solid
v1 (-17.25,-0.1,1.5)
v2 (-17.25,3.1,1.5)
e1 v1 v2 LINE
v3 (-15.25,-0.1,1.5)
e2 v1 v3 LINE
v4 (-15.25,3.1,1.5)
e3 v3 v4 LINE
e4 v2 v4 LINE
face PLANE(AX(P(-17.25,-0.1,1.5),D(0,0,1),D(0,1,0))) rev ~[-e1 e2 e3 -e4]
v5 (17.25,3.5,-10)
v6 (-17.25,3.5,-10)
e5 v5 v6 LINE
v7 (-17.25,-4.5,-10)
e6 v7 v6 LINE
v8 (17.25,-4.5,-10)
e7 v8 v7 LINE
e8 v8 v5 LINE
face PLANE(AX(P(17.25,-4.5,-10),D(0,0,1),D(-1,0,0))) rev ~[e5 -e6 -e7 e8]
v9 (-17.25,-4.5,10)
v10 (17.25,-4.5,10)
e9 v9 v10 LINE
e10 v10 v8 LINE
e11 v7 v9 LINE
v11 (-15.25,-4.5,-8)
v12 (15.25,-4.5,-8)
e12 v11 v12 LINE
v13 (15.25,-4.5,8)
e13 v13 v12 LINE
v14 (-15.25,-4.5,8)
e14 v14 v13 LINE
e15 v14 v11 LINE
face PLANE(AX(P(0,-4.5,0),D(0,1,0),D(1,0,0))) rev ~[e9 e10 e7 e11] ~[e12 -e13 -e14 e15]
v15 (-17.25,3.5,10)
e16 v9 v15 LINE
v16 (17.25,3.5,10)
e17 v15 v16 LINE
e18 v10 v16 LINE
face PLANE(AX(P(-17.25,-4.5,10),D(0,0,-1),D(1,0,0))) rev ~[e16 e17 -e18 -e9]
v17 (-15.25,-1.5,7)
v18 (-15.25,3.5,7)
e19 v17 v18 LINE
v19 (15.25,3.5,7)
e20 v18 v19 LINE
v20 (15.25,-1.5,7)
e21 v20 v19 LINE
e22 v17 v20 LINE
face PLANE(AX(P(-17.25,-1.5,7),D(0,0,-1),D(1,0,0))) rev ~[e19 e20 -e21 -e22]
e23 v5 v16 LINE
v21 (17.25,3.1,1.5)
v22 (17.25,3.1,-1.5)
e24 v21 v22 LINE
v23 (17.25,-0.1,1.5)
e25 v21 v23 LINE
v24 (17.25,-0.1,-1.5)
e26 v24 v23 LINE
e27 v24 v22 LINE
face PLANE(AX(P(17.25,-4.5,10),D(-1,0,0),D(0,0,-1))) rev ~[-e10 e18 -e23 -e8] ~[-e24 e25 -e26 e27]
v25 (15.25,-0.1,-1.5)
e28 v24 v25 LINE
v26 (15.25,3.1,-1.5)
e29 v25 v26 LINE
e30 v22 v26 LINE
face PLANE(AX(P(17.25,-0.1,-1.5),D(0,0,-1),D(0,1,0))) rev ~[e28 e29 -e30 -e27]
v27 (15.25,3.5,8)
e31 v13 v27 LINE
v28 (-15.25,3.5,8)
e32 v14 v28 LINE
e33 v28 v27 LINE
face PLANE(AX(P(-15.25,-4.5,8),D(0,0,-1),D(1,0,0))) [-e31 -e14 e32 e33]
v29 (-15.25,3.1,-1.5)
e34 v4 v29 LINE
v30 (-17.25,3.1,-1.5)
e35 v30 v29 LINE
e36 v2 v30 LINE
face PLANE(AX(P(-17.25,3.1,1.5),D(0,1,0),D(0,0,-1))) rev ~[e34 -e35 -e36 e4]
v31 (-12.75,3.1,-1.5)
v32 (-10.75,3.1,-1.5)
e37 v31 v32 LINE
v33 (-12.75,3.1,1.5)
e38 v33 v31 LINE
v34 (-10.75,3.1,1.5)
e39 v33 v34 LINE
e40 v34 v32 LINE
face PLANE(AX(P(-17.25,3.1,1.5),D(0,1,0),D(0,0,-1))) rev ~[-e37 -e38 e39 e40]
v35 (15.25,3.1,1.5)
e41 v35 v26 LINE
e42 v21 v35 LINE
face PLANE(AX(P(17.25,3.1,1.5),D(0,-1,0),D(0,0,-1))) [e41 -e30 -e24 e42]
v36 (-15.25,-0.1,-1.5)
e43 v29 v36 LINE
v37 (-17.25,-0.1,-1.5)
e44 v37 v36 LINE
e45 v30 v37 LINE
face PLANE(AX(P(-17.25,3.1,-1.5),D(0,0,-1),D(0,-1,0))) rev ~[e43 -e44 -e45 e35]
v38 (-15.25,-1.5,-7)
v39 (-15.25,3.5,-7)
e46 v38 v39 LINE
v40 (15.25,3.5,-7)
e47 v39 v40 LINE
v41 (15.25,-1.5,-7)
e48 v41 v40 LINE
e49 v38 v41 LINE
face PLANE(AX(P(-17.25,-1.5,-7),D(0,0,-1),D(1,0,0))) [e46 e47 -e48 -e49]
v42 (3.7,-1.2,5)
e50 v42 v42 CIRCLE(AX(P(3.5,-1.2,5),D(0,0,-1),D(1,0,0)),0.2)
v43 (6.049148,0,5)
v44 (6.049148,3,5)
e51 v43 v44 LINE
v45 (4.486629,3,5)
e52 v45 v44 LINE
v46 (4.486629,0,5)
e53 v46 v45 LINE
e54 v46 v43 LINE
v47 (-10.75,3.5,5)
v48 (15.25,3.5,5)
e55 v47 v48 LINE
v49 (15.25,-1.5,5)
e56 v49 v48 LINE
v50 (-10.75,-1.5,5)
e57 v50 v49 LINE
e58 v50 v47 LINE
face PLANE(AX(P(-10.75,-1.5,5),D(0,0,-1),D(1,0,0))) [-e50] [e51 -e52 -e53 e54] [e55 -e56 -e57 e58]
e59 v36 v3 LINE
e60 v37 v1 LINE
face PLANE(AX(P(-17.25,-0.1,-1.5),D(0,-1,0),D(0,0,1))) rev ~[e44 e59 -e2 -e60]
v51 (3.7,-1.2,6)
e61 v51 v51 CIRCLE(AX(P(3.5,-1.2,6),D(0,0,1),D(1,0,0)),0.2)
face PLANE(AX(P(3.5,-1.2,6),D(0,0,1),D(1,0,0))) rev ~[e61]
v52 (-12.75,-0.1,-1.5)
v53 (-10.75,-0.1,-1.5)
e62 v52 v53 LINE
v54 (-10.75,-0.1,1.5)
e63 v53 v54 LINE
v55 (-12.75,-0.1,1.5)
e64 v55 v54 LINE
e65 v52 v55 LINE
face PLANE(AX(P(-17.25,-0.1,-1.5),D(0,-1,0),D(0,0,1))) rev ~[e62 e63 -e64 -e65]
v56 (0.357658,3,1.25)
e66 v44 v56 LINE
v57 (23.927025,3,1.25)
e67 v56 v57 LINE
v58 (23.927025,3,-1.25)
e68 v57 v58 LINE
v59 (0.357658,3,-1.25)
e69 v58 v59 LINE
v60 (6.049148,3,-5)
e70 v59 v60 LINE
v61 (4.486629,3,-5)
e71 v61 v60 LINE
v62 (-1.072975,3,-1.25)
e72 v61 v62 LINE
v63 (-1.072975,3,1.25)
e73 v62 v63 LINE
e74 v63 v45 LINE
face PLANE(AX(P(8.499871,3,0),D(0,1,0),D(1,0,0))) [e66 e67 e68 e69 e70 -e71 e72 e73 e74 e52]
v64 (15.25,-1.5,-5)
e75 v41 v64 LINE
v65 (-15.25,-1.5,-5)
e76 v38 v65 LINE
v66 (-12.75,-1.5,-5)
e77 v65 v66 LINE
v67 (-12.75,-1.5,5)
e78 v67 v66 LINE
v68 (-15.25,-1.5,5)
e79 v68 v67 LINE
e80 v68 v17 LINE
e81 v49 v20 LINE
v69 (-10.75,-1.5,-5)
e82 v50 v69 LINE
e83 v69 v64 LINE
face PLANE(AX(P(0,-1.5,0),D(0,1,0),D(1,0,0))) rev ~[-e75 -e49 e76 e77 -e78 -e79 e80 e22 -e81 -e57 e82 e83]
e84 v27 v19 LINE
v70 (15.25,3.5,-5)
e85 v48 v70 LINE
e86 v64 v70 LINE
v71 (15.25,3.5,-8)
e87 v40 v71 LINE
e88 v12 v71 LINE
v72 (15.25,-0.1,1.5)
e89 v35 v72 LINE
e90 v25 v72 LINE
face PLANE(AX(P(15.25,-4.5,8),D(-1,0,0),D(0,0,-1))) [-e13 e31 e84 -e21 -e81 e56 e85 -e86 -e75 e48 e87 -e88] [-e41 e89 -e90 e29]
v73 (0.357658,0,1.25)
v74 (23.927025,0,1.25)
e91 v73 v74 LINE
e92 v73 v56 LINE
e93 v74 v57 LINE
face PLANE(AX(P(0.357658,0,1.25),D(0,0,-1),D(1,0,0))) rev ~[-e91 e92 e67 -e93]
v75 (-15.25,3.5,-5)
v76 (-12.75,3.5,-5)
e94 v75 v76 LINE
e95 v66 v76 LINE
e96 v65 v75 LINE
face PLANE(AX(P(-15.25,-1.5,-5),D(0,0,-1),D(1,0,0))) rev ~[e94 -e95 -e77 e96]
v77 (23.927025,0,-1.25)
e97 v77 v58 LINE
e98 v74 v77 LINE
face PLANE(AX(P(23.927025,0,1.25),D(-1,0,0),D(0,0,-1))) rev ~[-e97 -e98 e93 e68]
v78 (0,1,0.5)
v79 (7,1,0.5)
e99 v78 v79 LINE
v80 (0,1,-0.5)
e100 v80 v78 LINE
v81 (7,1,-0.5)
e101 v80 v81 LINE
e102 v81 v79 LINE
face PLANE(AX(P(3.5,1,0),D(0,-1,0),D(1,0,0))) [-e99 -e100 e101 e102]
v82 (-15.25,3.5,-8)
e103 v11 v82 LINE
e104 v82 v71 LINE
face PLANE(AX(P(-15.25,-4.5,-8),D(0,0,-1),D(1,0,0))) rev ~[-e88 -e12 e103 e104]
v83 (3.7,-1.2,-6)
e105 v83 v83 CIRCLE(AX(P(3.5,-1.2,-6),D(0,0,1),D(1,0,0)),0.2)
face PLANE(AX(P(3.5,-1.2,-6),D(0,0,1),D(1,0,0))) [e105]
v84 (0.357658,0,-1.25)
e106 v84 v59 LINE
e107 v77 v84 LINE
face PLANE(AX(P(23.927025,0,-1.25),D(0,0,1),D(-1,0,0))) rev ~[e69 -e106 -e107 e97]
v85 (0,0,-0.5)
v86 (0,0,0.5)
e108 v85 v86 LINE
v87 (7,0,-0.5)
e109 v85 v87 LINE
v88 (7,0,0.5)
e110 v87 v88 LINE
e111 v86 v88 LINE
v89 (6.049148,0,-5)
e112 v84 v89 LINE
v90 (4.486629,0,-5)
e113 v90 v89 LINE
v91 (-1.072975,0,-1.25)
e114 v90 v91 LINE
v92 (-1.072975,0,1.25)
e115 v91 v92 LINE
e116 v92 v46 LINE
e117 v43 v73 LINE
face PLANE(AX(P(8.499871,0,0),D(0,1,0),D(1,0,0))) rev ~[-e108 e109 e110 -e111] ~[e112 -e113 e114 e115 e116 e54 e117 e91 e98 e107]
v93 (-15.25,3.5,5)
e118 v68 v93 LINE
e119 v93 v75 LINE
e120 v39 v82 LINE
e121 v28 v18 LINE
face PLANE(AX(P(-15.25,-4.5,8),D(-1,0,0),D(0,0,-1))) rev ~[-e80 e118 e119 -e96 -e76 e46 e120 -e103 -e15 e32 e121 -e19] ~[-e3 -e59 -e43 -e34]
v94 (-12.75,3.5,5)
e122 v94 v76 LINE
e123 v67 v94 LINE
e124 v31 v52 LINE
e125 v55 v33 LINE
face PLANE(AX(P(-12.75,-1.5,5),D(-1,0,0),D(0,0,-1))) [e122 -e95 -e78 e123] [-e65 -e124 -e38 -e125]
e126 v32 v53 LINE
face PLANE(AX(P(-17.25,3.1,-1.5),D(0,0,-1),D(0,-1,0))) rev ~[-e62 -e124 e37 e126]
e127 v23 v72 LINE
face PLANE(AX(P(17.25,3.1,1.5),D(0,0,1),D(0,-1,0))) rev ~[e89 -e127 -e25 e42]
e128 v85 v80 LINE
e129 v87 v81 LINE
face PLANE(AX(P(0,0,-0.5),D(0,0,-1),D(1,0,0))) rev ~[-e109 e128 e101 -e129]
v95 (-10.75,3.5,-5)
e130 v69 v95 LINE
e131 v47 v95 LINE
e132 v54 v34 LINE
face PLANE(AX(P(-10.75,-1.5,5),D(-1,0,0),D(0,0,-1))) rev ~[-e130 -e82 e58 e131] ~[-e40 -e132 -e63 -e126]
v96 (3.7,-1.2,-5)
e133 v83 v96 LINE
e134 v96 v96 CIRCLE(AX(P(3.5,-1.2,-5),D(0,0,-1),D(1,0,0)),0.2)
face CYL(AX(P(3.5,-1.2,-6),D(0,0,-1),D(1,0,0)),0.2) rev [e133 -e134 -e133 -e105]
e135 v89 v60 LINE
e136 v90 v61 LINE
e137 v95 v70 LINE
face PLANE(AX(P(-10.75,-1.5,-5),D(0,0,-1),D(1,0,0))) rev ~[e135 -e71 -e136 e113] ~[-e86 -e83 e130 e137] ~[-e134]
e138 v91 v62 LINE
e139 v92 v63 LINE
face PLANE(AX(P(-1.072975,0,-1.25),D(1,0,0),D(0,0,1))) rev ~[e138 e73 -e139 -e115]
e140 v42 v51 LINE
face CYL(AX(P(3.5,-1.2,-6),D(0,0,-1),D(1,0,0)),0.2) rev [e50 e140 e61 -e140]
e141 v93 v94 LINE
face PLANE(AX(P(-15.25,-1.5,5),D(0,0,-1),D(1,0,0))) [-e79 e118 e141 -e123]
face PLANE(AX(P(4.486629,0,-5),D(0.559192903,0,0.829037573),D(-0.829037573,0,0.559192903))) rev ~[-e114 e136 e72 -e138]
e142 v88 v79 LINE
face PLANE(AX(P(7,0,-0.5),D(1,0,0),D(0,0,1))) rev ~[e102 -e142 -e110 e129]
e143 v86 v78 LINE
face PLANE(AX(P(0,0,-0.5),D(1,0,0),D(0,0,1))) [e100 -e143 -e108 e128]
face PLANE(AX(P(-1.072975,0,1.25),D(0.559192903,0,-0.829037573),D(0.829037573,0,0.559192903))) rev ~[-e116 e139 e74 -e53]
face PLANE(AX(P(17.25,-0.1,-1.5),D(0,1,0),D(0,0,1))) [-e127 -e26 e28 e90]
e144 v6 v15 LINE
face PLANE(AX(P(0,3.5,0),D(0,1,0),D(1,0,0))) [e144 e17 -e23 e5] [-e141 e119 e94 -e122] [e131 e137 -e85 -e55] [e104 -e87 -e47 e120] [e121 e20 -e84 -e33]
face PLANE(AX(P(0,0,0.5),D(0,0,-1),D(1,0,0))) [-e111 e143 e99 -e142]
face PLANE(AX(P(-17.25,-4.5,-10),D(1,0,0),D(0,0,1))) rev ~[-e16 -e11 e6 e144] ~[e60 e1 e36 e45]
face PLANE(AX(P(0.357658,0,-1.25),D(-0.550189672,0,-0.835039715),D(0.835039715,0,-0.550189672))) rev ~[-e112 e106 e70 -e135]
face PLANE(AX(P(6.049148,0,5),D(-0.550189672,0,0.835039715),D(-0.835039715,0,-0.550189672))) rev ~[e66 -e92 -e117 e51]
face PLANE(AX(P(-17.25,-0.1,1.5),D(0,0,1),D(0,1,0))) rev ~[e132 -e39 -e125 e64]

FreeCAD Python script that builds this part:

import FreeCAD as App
import Part
import Sketcher

V = App.Vector
Q = App.Units.Quantity


def add_polygon(sketch, points):
    """Adds a closed chain of lines whose ends are joined by coincident constraints."""
    first, n = sketch.GeometryCount, len(points)
    for a, b in zip(points, points[1:] + points[:1]):
        sketch.addGeometry(Part.LineSegment(App.Vector(*a, 0), App.Vector(*b, 0)), False)
    for i in range(n):
        sketch.addConstraint(Sketcher.Constraint("Coincident", first + i, 2, first + (i + 1) % n, 1))

doc = App.newDocument("Part")
body = doc.addObject("PartDesign::Body", "Body")

sketch1 = doc.addObject("Sketcher::SketchObject", "Sketch")
body.addObject(sketch1)
sketch1.AttachmentSupport = (doc.XZ_Plane, [""])
sketch1.MapMode = "FlatFace"
add_polygon(sketch1, [(-17.2, -7), (-17.2, 7), (17.2, 7), (17.2, -7)])
add_polygon(sketch1, [(-12.8, 5), (-15.2, 5), (-15.2, -5), (-12.8, -5)])
add_polygon(sketch1, [(15.2, 5), (-10.8, 5), (-10.8, -5), (15.2, -5)])
sketch1.addConstraint(Sketcher.Constraint("Vertical", 0))
sketch1.addConstraint(Sketcher.Constraint("Horizontal", 1))
sketch1.addConstraint(Sketcher.Constraint("Vertical", 2))
sketch1.addConstraint(Sketcher.Constraint("Horizontal", 3))
sketch1.addConstraint(Sketcher.Constraint("Horizontal", 4))
sketch1.addConstraint(Sketcher.Constraint("Vertical", 5))
sketch1.addConstraint(Sketcher.Constraint("Horizontal", 6))
sketch1.addConstraint(Sketcher.Constraint("Vertical", 7))
sketch1.addConstraint(Sketcher.Constraint("Horizontal", 8))
sketch1.addConstraint(Sketcher.Constraint("Vertical", 9))
sketch1.addConstraint(Sketcher.Constraint("Horizontal", 10))
sketch1.addConstraint(Sketcher.Constraint("Vertical", 11))
sketch1.addConstraint(Sketcher.Constraint("Symmetric", 0, 2, 2, 2, -1, 1))
sketch1.addConstraint(Sketcher.Constraint("Symmetric", 4, 2, 10, 2, -1, 1))
sketch1.addConstraint(Sketcher.Constraint("Horizontal", 7, 2, 8, 2))
sketch1.addConstraint(Sketcher.Constraint("Horizontal", 6, 2, 9, 2))
sketch1.addConstraint(Sketcher.Constraint("DistanceX", 8, 2, 8, 1, Q("26 mm")))
sketch1.addConstraint(Sketcher.Constraint("DistanceY", 0, 1, 0, 2, Q("14 mm")))
sketch1.addConstraint(Sketcher.Constraint("DistanceY", 5, 2, 5, 1, Q("10 mm")))
sketch1.addConstraint(Sketcher.Constraint("DistanceX", 1, 1, 1, 2, Q("34.5 mm")))
sketch1.addConstraint(Sketcher.Constraint("DistanceX", 4, 2, 4, 1, Q("2.5 mm")))
sketch1.addConstraint(Sketcher.Constraint("DistanceX", 0, 2, 4, 2, Q("2 mm")))
pad1 = doc.addObject("PartDesign::Pad", "Pad")
body.addObject(pad1)
pad1.Profile = sketch1
pad1.Type = "TwoLengths"
pad1.Length = 3.5
pad1.Length2 = 1.5
pad1.Reversed = True

sketch2 = doc.addObject("Sketcher::SketchObject", "Sketch001")
body.addObject(sketch2)
sketch2.AttachmentSupport = (doc.XZ_Plane, [""])
sketch2.MapMode = "FlatFace"
add_polygon(sketch2, [(17, 10), (17, -10), (-17, -10), (-17, 10)])
add_polygon(sketch2, [(15, 8), (-15, 8), (-15, -8), (15, -8)])
sketch2.addConstraint(Sketcher.Constraint("Vertical", 0))
sketch2.addConstraint(Sketcher.Constraint("Horizontal", 1))
sketch2.addConstraint(Sketcher.Constraint("Vertical", 2))
sketch2.addConstraint(Sketcher.Constraint("Horizontal", 3))
sketch2.addConstraint(Sketcher.Constraint("Horizontal", 4))
sketch2.addConstraint(Sketcher.Constraint("Vertical", 5))
sketch2.addConstraint(Sketcher.Constraint("Horizontal", 6))
sketch2.addConstraint(Sketcher.Constraint("Vertical", 7))
sketch2.addConstraint(Sketcher.Constraint("Symmetric", 0, 2, 2, 2, -1, 1))
sketch2.addConstraint(Sketcher.Constraint("Symmetric", 4, 2, 6, 2, -1, 1))
sketch2.addConstraint(Sketcher.Constraint("DistanceY", 0, 2, 0, 1, Q("20 mm")))
sketch2.addConstraint(Sketcher.Constraint("DistanceY", 5, 2, 5, 1, Q("16 mm")))
sketch2.addConstraint(Sketcher.Constraint("DistanceX", 1, 2, 1, 1, Q("34.5 mm")))
sketch2.addConstraint(Sketcher.Constraint("DistanceX", 4, 2, 4, 1, Q("30.5 mm")))
pad2 = doc.addObject("PartDesign::Pad", "Pad001")
body.addObject(pad2)
pad2.Profile = sketch2
pad2.Type = "TwoLengths"
pad2.Length = 3.5
pad2.Length2 = 4.5
pad2.Reversed = True

sketch3 = doc.addObject("Sketcher::SketchObject", "Sketch002")
body.addObject(sketch3)
sketch3.AttachmentSupport = (doc.YZ_Plane, [""])
sketch3.MapMode = "FlatFace"
sketch3.AttachmentOffset = App.Placement(V(0, 0, 17.25), App.Rotation())
add_polygon(sketch3, [(3.1, 1.5), (-0.1, 1.5), (-0.1, -1.5), (3.1, -1.5)])
sketch3.addConstraint(Sketcher.Constraint("Horizontal", 0))
sketch3.addConstraint(Sketcher.Constraint("Vertical", 1))
sketch3.addConstraint(Sketcher.Constraint("Horizontal", 2))
sketch3.addConstraint(Sketcher.Constraint("Vertical", 3))
sketch3.addConstraint(Sketcher.Constraint("DistanceY", 1, 2, 1, 1, Q("3 mm")))
sketch3.addConstraint(Sketcher.Constraint("DistanceX", 0, 2, 0, 1, Q("3.2 mm")))
sketch3.addConstraint(Sketcher.Constraint("DistanceX", 0, 2, -1, 1, Q("0.1 mm")))
sketch3.addConstraint(Sketcher.Constraint("DistanceY", -1, 1, 0, 2, Q("1.5 mm")))
pocket1 = doc.addObject("PartDesign::Pocket", "Pocket")
body.addObject(pocket1)
pocket1.Profile = sketch3
pocket1.Length = 2

sketch4 = doc.addObject("Sketcher::SketchObject", "Sketch003")
body.addObject(sketch4)
sketch4.AttachmentSupport = (doc.YZ_Plane, [""])
sketch4.MapMode = "FlatFace"
sketch4.AttachmentOffset = App.Placement(V(0, 0, -17.25), App.Rotation())
add_polygon(sketch4, [(-0.1, -1.5), (-0.1, 1.5), (3.1, 1.5), (3.1, -1.5)])
sketch4.addConstraint(Sketcher.Constraint("Vertical", 0))
sketch4.addConstraint(Sketcher.Constraint("Horizontal", 1))
sketch4.addConstraint(Sketcher.Constraint("Vertical", 2))
sketch4.addConstraint(Sketcher.Constraint("Horizontal", 3))
sketch4.addConstraint(Sketcher.Constraint("DistanceY", 0, 1, 0, 2, Q("3 mm")))
sketch4.addConstraint(Sketcher.Constraint("DistanceX", 1, 1, 1, 2, Q("3.2 mm")))
sketch4.addConstraint(Sketcher.Constraint("DistanceX", 0, 2, -1, 1, Q("0.1 mm")))
sketch4.addConstraint(Sketcher.Constraint("DistanceY", -1, 1, 0, 2, Q("1.5 mm")))
pocket2 = doc.addObject("PartDesign::Pocket", "Pocket001")
body.addObject(pocket2)
pocket2.Profile = sketch4
pocket2.Length = 8
pocket2.Reversed = True

sketch5 = doc.addObject("Sketcher::SketchObject", "Sketch004")
body.addObject(sketch5)
sketch5.AttachmentSupport = (doc.XZ_Plane, [""])
sketch5.MapMode = "FlatFace"
add_polygon(sketch5, [(-1.1, 1.2), (4.5, 5), (4.5, 6), (6, 6), (6, 5), (0.4, 1.2), (23.9, 1.2), (23.9, -1.2), (0.4, -1.2), (6, -5), (6, -6), (4.5, -6), (4.5, -5), (-1.1, -1.2)])
sketch5.addConstraint(Sketcher.Constraint("Vertical", 1))
sketch5.addConstraint(Sketcher.Constraint("Horizontal", 2))
sketch5.addConstraint(Sketcher.Constraint("Vertical", 3))
sketch5.addConstraint(Sketcher.Constraint("Horizontal", 5))
sketch5.addConstraint(Sketcher.Constraint("Vertical", 6))
sketch5.addConstraint(Sketcher.Constraint("Horizontal", 7))
sketch5.addConstraint(Sketcher.Constraint("Vertical", 9))
sketch5.addConstraint(Sketcher.Constraint("Horizontal", 10))
sketch5.addConstraint(Sketcher.Constraint("Vertical", 11))
sketch5.addConstraint(Sketcher.Constraint("Vertical", 13))
sketch5.addConstraint(Sketcher.Constraint("Symmetric", 4, 2, 7, 2, -1))
sketch5.addConstraint(Sketcher.Constraint("Symmetric", 3, 2, 8, 2, -1))
sketch5.addConstraint(Sketcher.Constraint("Symmetric", 1, 2, 10, 2, -1))
sketch5.addConstraint(Sketcher.Constraint("Horizontal", 0, 2, 3, 2))
sketch5.addConstraint(Sketcher.Constraint("Horizontal", 8, 2, 11, 2))
sketch5.addConstraint(Sketcher.Constraint("Horizontal", 7, 2, 12, 2))
sketch5.addConstraint(Sketcher.Constraint("Horizontal", 5, 2, 13, 2))
sketch5.addConstraint(Sketcher.Constraint("DistanceY", 1, 1, 1, 2, Q("1 mm")))
sketch5.addConstraint(Sketcher.Constraint("Angle", 0, Q("34 deg")))
sketch5.addConstraint(Sketcher.Constraint("DistanceY", 6, 2, 6, 1, Q("2.5 mm")))
sketch5.addConstraint(Sketcher.Constraint("DistanceY", -1, 1, 0, 2, Q("5 mm")))
sketch5.addConstraint(Sketcher.Constraint("DistanceX", 2, 1, 2, 2, Q("1.56252 mm")))
sketch5.addConstraint(Sketcher.Constraint("Distance", 4, Q("6.815831 mm")))
sketch5.addConstraint(Sketcher.Constraint("DistanceX", 5, 1, 5, 2, Q("23.569367 mm")))
sketch5.addConstraint(Sketcher.Constraint("DistanceX", -1, 1, 0, 2, Q("4.486629 mm")))
pad3 = doc.addObject("PartDesign::Pad", "Pad002")
body.addObject(pad3)
pad3.Profile = sketch5
pad3.Length = 3
pad3.Reversed = True

sketch6 = doc.addObject("Sketcher::SketchObject", "Sketch005")
body.addObject(sketch6)
sketch6.AttachmentSupport = (doc.XZ_Plane, [""])
sketch6.MapMode = "FlatFace"
add_polygon(sketch6, [(0, 0.5), (0, -0.5), (7, -0.5), (7, 0.5)])
sketch6.addConstraint(Sketcher.Constraint("Vertical", 0))
sketch6.addConstraint(Sketcher.Constraint("Horizontal", 1))
sketch6.addConstraint(Sketcher.Constraint("Vertical", 2))
sketch6.addConstraint(Sketcher.Constraint("Horizontal", 3))
sketch6.addConstraint(Sketcher.Constraint("Symmetric", 0, 2, 3, 2, -1, 1))
sketch6.addConstraint(Sketcher.Constraint("DistanceX", 1, 1, 1, 2, Q("7 mm")))
sketch6.addConstraint(Sketcher.Constraint("DistanceY", 0, 2, 0, 1, Q("1 mm")))
pocket3 = doc.addObject("PartDesign::Pocket", "Pocket002")
body.addObject(pocket3)
pocket3.Profile = sketch6
pocket3.Length = 1

sketch7 = doc.addObject("Sketcher::SketchObject", "Sketch006")
body.addObject(sketch7)
sketch7.AttachmentSupport = (doc.XY_Plane, [""])
sketch7.MapMode = "FlatFace"
sketch7.addGeometry(Part.Circle(V(3.5, -1.2, 0), V(0, 0, 1), 0.2), False)
sketch7.addConstraint(Sketcher.Constraint("Diameter", 0, Q("0.4 mm")))
sketch7.addConstraint(Sketcher.Constraint("DistanceX", -1, 1, 0, 3, Q("3.5 mm")))
sketch7.addConstraint(Sketcher.Constraint("DistanceY", 0, 3, -1, 1, Q("1.2 mm")))
pocket4 = doc.addObject("PartDesign::Pocket", "Pocket003")
body.addObject(pocket4)
pocket4.Profile = sketch7
pocket4.Type = "TwoLengths"
pocket4.Length = 6
pocket4.Length2 = 6
pocket4.Reversed = True

doc.recompute()
